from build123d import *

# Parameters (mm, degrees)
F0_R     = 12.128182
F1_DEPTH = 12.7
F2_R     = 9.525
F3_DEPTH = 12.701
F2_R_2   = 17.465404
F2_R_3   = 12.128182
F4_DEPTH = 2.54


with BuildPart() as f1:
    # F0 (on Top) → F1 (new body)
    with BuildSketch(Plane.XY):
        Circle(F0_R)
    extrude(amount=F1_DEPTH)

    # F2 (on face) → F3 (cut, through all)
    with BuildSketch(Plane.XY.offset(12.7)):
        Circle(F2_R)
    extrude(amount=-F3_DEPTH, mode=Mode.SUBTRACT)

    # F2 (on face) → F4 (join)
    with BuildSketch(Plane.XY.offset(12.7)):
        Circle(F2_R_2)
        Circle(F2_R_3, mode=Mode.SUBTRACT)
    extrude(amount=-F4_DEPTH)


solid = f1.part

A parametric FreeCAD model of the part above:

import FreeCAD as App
import Part
import Sketcher

V = App.Vector
Q = App.Units.Quantity

doc = App.newDocument("Part")
params = doc.addObject("Spreadsheet::Sheet", "Params")
for row, (alias, value) in enumerate([
    ("pad1_length", "0.5 in"),
    ("sketch2_diameter", "0.75 in"),
    ("pad2_length", "0.1 in"),
], start=1):
    params.set(f"A{row}", alias)
    params.set(f"B{row}", "=" + value)
    params.setAlias(f"B{row}", alias)

body = doc.addObject("PartDesign::Body", "Body")

sketch1 = doc.addObject("Sketcher::SketchObject", "Sketch")
body.addObject(sketch1)
sketch1.AttachmentSupport = (doc.XY_Plane, [""])
sketch1.MapMode = "FlatFace"
sketch1.addGeometry(Part.Circle(V(0, 0, 0), V(0, 0, 1), 12), False)
sketch1.addConstraint([
    Sketcher.Constraint("Coincident", 0, 3, -1, 1),
    Sketcher.Constraint("Diameter", 0, Q("24.256364 mm")),
])
pad1 = doc.addObject("PartDesign::Pad", "Pad")
body.addObject(pad1)
pad1.Profile = sketch1
pad1.setExpression("Length", "Params.pad1_length")

sketch2 = doc.addObject("Sketcher::SketchObject", "Sketch001")
body.addObject(sketch2)
sketch2.AttachmentSupport = (doc.XY_Plane, [""])
sketch2.MapMode = "FlatFace"
sketch2.AttachmentOffset = App.Placement(V(0, 0, 0.5 * 25.4), App.Rotation())
sketch2.addGeometry(Part.Circle(V(0, 0, 0), V(0, 0, 1), 10), False)
sketch2.addConstraint([
    Sketcher.Constraint("Coincident", 0, 3, -1, 1),
    Sketcher.Constraint("Diameter", 0, Q("0.75 in")),
])
sketch2.setExpression("Constraints[1]", "Params.sketch2_diameter")
pocket1 = doc.addObject("PartDesign::Pocket", "Pocket")
body.addObject(pocket1)
pocket1.Profile = sketch2
pocket1.Type = "ThroughAll"

sketch3 = doc.addObject("Sketcher::SketchObject", "Sketch002")
body.addObject(sketch3)
sketch3.AttachmentSupport = (doc.XY_Plane, [""])
sketch3.MapMode = "FlatFace"
sketch3.AttachmentOffset = App.Placement(V(0, 0, 0.5 * 25.4), App.Rotation())
sketch3.addGeometry([
    Part.Circle(V(0, 0, 0), V(0, 0, 1), 17),
    Part.Circle(V(0, 0, 0), V(0, 0, 1), 12),
], False)
sketch3.addConstraint([
    Sketcher.Constraint("Coincident", 0, 3, -1, 1),
    Sketcher.Constraint("Coincident", 1, 3, -1, 1),
    Sketcher.Constraint("Diameter", 0, Q("34.930808 mm")),
    Sketcher.Constraint("Diameter", 1, Q("24.256364 mm")),
])
pad2 = doc.addObject("PartDesign::Pad", "Pad001")
body.addObject(pad2)
pad2.Profile = sketch3
pad2.setExpression("Length", "Params.pad2_length")
pad2.Reversed = True

doc.recompute()
